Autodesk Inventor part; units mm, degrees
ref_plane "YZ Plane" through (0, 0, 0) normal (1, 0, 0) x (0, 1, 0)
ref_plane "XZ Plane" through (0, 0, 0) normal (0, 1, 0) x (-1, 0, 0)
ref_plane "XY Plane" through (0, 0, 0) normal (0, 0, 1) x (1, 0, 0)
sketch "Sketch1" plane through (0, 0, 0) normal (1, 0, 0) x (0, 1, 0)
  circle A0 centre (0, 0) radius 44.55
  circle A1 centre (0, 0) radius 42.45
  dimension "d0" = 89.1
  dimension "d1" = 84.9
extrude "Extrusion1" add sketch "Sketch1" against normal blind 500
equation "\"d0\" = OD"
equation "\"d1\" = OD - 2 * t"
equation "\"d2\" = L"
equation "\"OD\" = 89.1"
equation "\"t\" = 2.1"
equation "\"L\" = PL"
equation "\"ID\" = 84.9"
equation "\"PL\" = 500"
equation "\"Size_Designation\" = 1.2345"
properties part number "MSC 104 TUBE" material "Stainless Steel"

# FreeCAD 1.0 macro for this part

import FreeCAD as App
import Part
import Sketcher
Q = App.Units.Quantity

doc = App.newDocument("Part")
body = doc.addObject("PartDesign::Body", "Body")

sketch1 = body.newObject("Sketcher::SketchObject", "Sketch")
sketch1.AttachmentSupport = (doc.getObject("YZ_Plane"), [""])
sketch1.MapMode = "FlatFace"
sketch1.addGeometry([
    Part.Circle(App.Vector(0, 0, 0), App.Vector(0, 0, 1), 45),
    Part.Circle(App.Vector(0, 0, 0), App.Vector(0, 0, 1), 42),
], False)
sketch1.addConstraint([
    Sketcher.Constraint("Coincident", 0, 3, -1, 1),
    Sketcher.Constraint("Coincident", 1, 3, -1, 1),
    Sketcher.Constraint("Diameter", 0, Q("89.1 mm")),
    Sketcher.Constraint("Diameter", 1, Q("84.9 mm")),
])
pad1 = body.newObject("PartDesign::Pad", "Pad")
pad1.Profile = sketch1
pad1.Length = 500
pad1.Reversed = True

doc.recompute()
